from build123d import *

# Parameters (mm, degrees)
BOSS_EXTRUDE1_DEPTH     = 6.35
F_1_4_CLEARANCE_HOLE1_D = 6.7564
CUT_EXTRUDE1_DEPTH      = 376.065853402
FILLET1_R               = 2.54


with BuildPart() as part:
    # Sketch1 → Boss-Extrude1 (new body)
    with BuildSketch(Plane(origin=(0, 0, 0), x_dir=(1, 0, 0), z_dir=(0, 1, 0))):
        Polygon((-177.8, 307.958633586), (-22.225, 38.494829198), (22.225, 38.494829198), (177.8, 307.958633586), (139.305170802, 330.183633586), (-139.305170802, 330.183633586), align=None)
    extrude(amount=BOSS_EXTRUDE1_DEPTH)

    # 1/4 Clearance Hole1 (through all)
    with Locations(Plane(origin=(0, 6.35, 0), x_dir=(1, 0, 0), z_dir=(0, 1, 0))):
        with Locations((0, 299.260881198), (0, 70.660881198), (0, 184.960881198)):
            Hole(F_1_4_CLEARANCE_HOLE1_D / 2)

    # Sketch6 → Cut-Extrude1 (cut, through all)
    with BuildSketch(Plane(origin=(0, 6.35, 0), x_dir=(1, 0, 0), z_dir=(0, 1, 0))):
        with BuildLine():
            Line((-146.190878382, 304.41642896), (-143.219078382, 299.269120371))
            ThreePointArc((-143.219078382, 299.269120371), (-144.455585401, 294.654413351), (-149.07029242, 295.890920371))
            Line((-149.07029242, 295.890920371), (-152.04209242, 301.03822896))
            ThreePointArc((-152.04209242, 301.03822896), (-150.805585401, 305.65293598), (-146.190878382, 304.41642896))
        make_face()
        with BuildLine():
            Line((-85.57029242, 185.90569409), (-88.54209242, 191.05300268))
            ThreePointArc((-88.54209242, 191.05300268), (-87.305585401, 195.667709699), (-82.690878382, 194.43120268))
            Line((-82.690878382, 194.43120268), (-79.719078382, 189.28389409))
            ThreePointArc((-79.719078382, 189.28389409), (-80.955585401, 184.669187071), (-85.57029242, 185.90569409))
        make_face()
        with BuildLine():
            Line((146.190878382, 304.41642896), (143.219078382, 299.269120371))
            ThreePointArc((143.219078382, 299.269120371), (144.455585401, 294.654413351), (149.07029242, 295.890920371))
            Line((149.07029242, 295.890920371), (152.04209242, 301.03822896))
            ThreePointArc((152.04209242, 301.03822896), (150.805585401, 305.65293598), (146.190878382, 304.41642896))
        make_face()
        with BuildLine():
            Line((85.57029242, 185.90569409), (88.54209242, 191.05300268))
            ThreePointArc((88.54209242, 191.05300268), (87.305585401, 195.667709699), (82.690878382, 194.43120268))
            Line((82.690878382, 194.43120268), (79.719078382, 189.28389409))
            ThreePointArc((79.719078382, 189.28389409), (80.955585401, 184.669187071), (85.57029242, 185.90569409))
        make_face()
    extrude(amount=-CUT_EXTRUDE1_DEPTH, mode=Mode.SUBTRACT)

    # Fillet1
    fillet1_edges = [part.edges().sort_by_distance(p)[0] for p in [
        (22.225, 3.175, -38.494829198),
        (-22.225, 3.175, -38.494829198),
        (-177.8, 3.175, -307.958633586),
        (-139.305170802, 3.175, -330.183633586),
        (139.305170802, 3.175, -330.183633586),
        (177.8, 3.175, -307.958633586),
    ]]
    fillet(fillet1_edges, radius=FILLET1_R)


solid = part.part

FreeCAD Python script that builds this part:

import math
import FreeCAD as App
import Part
import Sketcher
from FreeCAD import Vector
Q = App.Units.Quantity


def edges_at(feature, points):
    """Names of the edges that pass closest to the given points."""
    edges = feature.Shape.Edges
    near = lambda p: min(range(len(edges)), key=lambda i: edges[i].distToShape(Part.Vertex(*p))[0])
    return sorted({f"Edge{near(p) + 1}" for p in points})


def add_polygon(sketch, points):
    """Adds a closed chain of lines whose ends are joined by coincident constraints."""
    first, n = sketch.GeometryCount, len(points)
    for a, b in zip(points, points[1:] + points[:1]):
        sketch.addGeometry(Part.LineSegment(App.Vector(*a, 0), App.Vector(*b, 0)), False)
    for i in range(n):
        sketch.addConstraint(Sketcher.Constraint("Coincident", first + i, 2, first + (i + 1) % n, 1))

doc = App.newDocument("Part")
body = doc.addObject("PartDesign::Body", "Body")

sketch1 = doc.addObject("Sketcher::SketchObject", "Sketch")
body.addObject(sketch1)
sketch1.AttachmentSupport = (doc.XZ_Plane, [""])
sketch1.MapMode = "FlatFace"
add_polygon(sketch1, [(-178, -308), (-22, -38), (22, -38), (178, -308), (139, -330), (-139, -330)])
sketch1.addConstraint(Sketcher.Constraint("Horizontal", 1))
sketch1.addConstraint(Sketcher.Constraint("Horizontal", 4))
sketch1.addConstraint(Sketcher.Constraint("Symmetric", 2, 2, 5, 2, -2))
sketch1.addConstraint(Sketcher.Constraint("Perpendicular", 2, 3))
sketch1.addConstraint(Sketcher.Constraint("Perpendicular", 0, 5))
sketch1.addConstraint(Sketcher.Constraint("Equal", 0, 2))
sketch1.addConstraint(Sketcher.Constraint("DistanceX", -1, 1, 2, 2, Q("7 in")))
sketch1.addConstraint(Sketcher.Constraint("Angle", 0, Q("60 deg")))
sketch1.addConstraint(Sketcher.Constraint("DistanceX", 1, 1, 1, 2, Q("1.75 in")))
sketch1.addConstraint(Sketcher.Constraint("Distance", 3, Q("1.75 in")))
sketch1.addConstraint(Sketcher.Constraint("DistanceY", 0, 2, -1, 1, 38.494829))
pad1 = doc.addObject("PartDesign::Pad", "Pad")
body.addObject(pad1)
pad1.Profile = sketch1
pad1.Length = Q("0.25 in")
pad1.Reversed = True

sketch2 = doc.addObject("Sketcher::SketchObject", "Sketch001")
body.addObject(sketch2)
sketch2.AttachmentSupport = (doc.XZ_Plane, [""])
sketch2.MapMode = "FlatFace"
sketch2.AttachmentOffset = App.Placement(Vector(0, 0, -0.25 * 25.4), App.Rotation())
sketch2.addGeometry(Part.Circle(Vector(0, -299.3, 0), Vector(0, 0, 1), 3.4), False)
sketch2.addGeometry(Part.Circle(Vector(0, -70.7, 0), Vector(0, 0, 1), 3.4), False)
sketch2.addGeometry(Part.Circle(Vector(0, -185, 0), Vector(0, 0, 1), 3.4), False)
sketch2.addConstraint(Sketcher.Constraint("Equal", 0, 1))
sketch2.addConstraint(Sketcher.Constraint("Equal", 1, 2))
sketch2.addConstraint(Sketcher.Constraint("PointOnObject", 0, 3, -2))
sketch2.addConstraint(Sketcher.Constraint("PointOnObject", 1, 3, -2))
sketch2.addConstraint(Sketcher.Constraint("PointOnObject", 2, 3, -2))
sketch2.addConstraint(Sketcher.Constraint("Diameter", 0, Q("0.266 in")))
sketch2.addConstraint(Sketcher.Constraint("DistanceY", 0, 3, 1, 3, Q("9 in")))
sketch2.addConstraint(Sketcher.Constraint("DistanceY", 0, 3, 2, 3, Q("4.5 in")))
sketch2.addConstraint(Sketcher.Constraint("DistanceY", 0, 3, -1, 1, 299.260881))
doc.recompute()
hole = doc.addObject("PartDesign::Hole", "Hole")
body.addObject(hole)
hole.Profile = sketch2
hole.ThreadType = "None"
hole.Diameter = Q("0.266 in")
hole.DepthType = "ThroughAll"
hole.Reversed = True

sketch3 = doc.addObject("Sketcher::SketchObject", "Sketch002")
body.addObject(sketch3)
sketch3.AttachmentSupport = (doc.XZ_Plane, [""])
sketch3.MapMode = "FlatFace"
sketch3.AttachmentOffset = App.Placement(Vector(0, 0, -0.25 * 25.4), App.Rotation())
sketch3.addGeometry(Part.LineSegment(Vector(-143.2, -299.3, 0), Vector(-146.2, -304.4, 0)), False)
sketch3.addGeometry(Part.ArcOfCircle(Part.Circle(Vector(-149.1, -302.7, 0), Vector(0, 0, 1), 3.4), math.radians(150), math.radians(330)), False)
sketch3.addGeometry(Part.LineSegment(Vector(-152, -301, 0), Vector(-149.1, -295.9, 0)), False)
sketch3.addGeometry(Part.ArcOfCircle(Part.Circle(Vector(-146.1, -297.6, 0), Vector(0, 0, 1), 3.4), math.radians(-30), math.radians(150)), False)
sketch3.addGeometry(Part.LineSegment(Vector(-88.5, -191.1, 0), Vector(-85.6, -185.9, 0)), False)
sketch3.addGeometry(Part.ArcOfCircle(Part.Circle(Vector(-82.6, -187.6, 0), Vector(0, 0, 1), 3.4), math.radians(-30), math.radians(150)), False)
sketch3.addGeometry(Part.LineSegment(Vector(-79.7, -189.3, 0), Vector(-82.7, -194.4, 0)), False)
sketch3.addGeometry(Part.ArcOfCircle(Part.Circle(Vector(-85.6, -192.7, 0), Vector(0, 0, 1), 3.4), math.radians(150), math.radians(330)), False)
sketch3.addGeometry(Part.LineSegment(Vector(146.2, -304.4, 0), Vector(143.2, -299.3, 0)), False)
sketch3.addGeometry(Part.ArcOfCircle(Part.Circle(Vector(146.1, -297.6, 0), Vector(0, 0, 1), 3.4), math.radians(30), math.radians(210)), False)
sketch3.addGeometry(Part.LineSegment(Vector(149.1, -295.9, 0), Vector(152, -301, 0)), False)
sketch3.addGeometry(Part.ArcOfCircle(Part.Circle(Vector(149.1, -302.7, 0), Vector(0, 0, 1), 3.4), math.radians(-150), math.radians(30)), False)
sketch3.addGeometry(Part.LineSegment(Vector(85.6, -185.9, 0), Vector(88.5, -191.1, 0)), False)
sketch3.addGeometry(Part.ArcOfCircle(Part.Circle(Vector(85.6, -192.7, 0), Vector(0, 0, 1), 3.4), math.radians(-150), math.radians(30)), False)
sketch3.addGeometry(Part.LineSegment(Vector(82.7, -194.4, 0), Vector(79.7, -189.3, 0)), False)
sketch3.addGeometry(Part.ArcOfCircle(Part.Circle(Vector(82.6, -187.6, 0), Vector(0, 0, 1), 3.4), math.radians(30), math.radians(210)), False)
sketch3.addConstraint(Sketcher.Constraint("Tangent", 0, 2, 1, 2))
sketch3.addConstraint(Sketcher.Constraint("Tangent", 1, 1, 2, 1))
sketch3.addConstraint(Sketcher.Constraint("Tangent", 2, 2, 3, 2))
sketch3.addConstraint(Sketcher.Constraint("Tangent", 3, 1, 0, 1))
sketch3.addConstraint(Sketcher.Constraint("Tangent", 4, 2, 5, 2))
sketch3.addConstraint(Sketcher.Constraint("Tangent", 5, 1, 6, 1))
sketch3.addConstraint(Sketcher.Constraint("Tangent", 6, 2, 7, 2))
sketch3.addConstraint(Sketcher.Constraint("Tangent", 7, 1, 4, 1))
sketch3.addConstraint(Sketcher.Constraint("Tangent", 8, 2, 9, 2))
sketch3.addConstraint(Sketcher.Constraint("Tangent", 9, 1, 10, 1))
sketch3.addConstraint(Sketcher.Constraint("Tangent", 10, 2, 11, 2))
sketch3.addConstraint(Sketcher.Constraint("Tangent", 11, 1, 8, 1))
sketch3.addConstraint(Sketcher.Constraint("Tangent", 12, 2, 13, 2))
sketch3.addConstraint(Sketcher.Constraint("Tangent", 13, 1, 14, 1))
sketch3.addConstraint(Sketcher.Constraint("Tangent", 14, 2, 15, 2))
sketch3.addConstraint(Sketcher.Constraint("Tangent", 15, 1, 12, 1))
sketch3.addConstraint(Sketcher.Constraint("Equal", 1, 3))
sketch3.addConstraint(Sketcher.Constraint("Equal", 3, 5))
sketch3.addConstraint(Sketcher.Constraint("Equal", 5, 7))
sketch3.addConstraint(Sketcher.Constraint("Equal", 7, 9))
sketch3.addConstraint(Sketcher.Constraint("Equal", 9, 11))
sketch3.addConstraint(Sketcher.Constraint("Equal", 11, 13))
sketch3.addConstraint(Sketcher.Constraint("Equal", 13, 15))
sketch3.addConstraint(Sketcher.Constraint("Symmetric", 3, 3, 9, 3, -2))
sketch3.addConstraint(Sketcher.Constraint("Symmetric", 1, 3, 11, 3, -2))
sketch3.addConstraint(Sketcher.Constraint("Symmetric", 7, 3, 13, 3, -2))
sketch3.addConstraint(Sketcher.Constraint("Symmetric", 5, 3, 15, 3, -2))
sketch3.addConstraint(Sketcher.Constraint("Parallel", 2, 4))
sketch3.addConstraint(Sketcher.Constraint("Equal", 2, 4))
sketch3.addConstraint(Sketcher.Constraint("Angle", 0, Q("-120 deg")))
sketch3.addConstraint(Sketcher.Constraint("Radius", 1, Q("0.133 in")))
sketch3.addConstraint(Sketcher.Constraint("DistanceX", 3, 3, 5, 3, Q("2.5 in")))
sketch3.addConstraint(Sketcher.Constraint("Distance", 0, Q("0.234 in")))
sketch3.addConstraint(Sketcher.Constraint("DistanceY", 1, 3, -1, 1, 302.727329))
sketch3.addConstraint(Sketcher.Constraint("DistanceX", 0, 2, -1, 1, 146.190878))
sketch3.addConstraint(Sketcher.Constraint("DistanceY", 5, 3, -1, 1, 187.594794))
pocket1 = doc.addObject("PartDesign::Pocket", "Pocket")
body.addObject(pocket1)
pocket1.Profile = sketch3
pocket1.Type = "ThroughAll"
pocket1.Reversed = True
doc.recompute()

fillet = doc.addObject("PartDesign::Fillet", "Fillet")
body.addObject(fillet)
fillet.Base = (pocket1, edges_at(pocket1, [
    (22.225, 3.175, -38.495),
    (-22.225, 3.175, -38.495),
    (-177.8, 3.175, -307.959),
    (-139.305, 3.175, -330.184),
    (139.305, 3.175, -330.184),
    (177.8, 3.175, -307.959),
]))
fillet.Radius = Q("0.1 in")

doc.recompute()
